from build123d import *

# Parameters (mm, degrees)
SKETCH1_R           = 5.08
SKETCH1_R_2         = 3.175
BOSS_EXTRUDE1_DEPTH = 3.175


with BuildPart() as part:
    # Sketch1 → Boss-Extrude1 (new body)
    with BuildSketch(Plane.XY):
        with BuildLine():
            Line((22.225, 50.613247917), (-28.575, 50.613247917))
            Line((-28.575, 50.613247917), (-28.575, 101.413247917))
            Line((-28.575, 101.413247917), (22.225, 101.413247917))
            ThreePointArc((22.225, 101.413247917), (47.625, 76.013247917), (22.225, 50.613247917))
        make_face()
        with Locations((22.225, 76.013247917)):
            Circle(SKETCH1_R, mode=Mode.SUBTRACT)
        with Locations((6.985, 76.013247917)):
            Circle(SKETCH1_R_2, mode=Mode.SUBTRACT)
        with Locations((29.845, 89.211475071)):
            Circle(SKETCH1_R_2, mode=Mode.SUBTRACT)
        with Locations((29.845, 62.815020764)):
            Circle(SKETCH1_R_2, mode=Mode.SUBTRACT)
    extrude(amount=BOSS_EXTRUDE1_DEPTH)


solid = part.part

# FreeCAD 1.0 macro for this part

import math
import FreeCAD as App
import Part
import Sketcher
Q = App.Units.Quantity

doc = App.newDocument("Part")
body = doc.addObject("PartDesign::Body", "Body")

# Sketch on XY plane
sketch1 = doc.addObject("Sketcher::SketchObject", "Sketch")
body.addObject(sketch1)
sketch1.AttachmentSupport = (doc.XY_Plane, [""])
sketch1.MapMode = "FlatFace"
sketch1.addGeometry([
    Part.LineSegment(App.Vector(-28.6, 50.6, 0), App.Vector(22.2, 50.6, 0)),  # 0
    Part.ArcOfCircle(Part.Circle(App.Vector(22.2, 76, 0), App.Vector(0, 0, 1), 25.4), math.radians(-90), math.radians(90)),  # 1
    Part.LineSegment(App.Vector(22.2, 101.4, 0), App.Vector(-28.6, 101.4, 0)),  # 2
    Part.LineSegment(App.Vector(-28.6, 101.4, 0), App.Vector(-28.6, 50.6, 0)),  # 3
    Part.Circle(App.Vector(29.8, 62.8, 0), App.Vector(0, 0, 1), 3.2),  # 4
    Part.Circle(App.Vector(22.2, 76, 0), App.Vector(0, 0, 1), 5.1),  # 5
    Part.Circle(App.Vector(7, 76, 0), App.Vector(0, 0, 1), 3.2),  # 6
    Part.Circle(App.Vector(29.8, 89.2, 0), App.Vector(0, 0, 1), 3.2),  # 7
], False)
sketch1.addConstraint([
    Sketcher.Constraint("Tangent", 0, 2, 1, 1),
    Sketcher.Constraint("Tangent", 1, 2, 2, 1),
    Sketcher.Constraint("Coincident", 2, 2, 3, 1),
    Sketcher.Constraint("Coincident", 3, 2, 0, 1),
    Sketcher.Constraint("Horizontal", 0),
    Sketcher.Constraint("Horizontal", 2),
    Sketcher.Constraint("Vertical", 3),
    Sketcher.Constraint("Coincident", 5, 3, 1, 3),
    Sketcher.Constraint("Equal", 4, 6),
    Sketcher.Constraint("Equal", 6, 7),
    Sketcher.Constraint("Horizontal", 5, 3, 6, 3),
    Sketcher.Constraint("Vertical", 4, 3, 7, 3),
    Sketcher.Constraint("Equal", 2, 3),
    Sketcher.Constraint("Radius", 1, Q("1 in")),
    Sketcher.Constraint("Diameter", 5, Q("0.4 in")),
    Sketcher.Constraint("Diameter", 4, Q("0.25 in")),
    Sketcher.Constraint("DistanceX", 1, 3, 4, 3, Q("0.3 in")),
    Sketcher.Constraint("DistanceX", 6, 3, 1, 3, Q("0.6 in")),
    Sketcher.Constraint("DistanceX", -1, 1, 1, 3, Q("0.875 in")),
    Sketcher.Constraint("DistanceY", -1, 1, 4, 3, 62.815021),
    Sketcher.Constraint("DistanceY", -1, 1, 1, 3, 76.013248),
    Sketcher.Constraint("DistanceY", -1, 1, 7, 3, 89.211475),
])
pad1 = doc.addObject("PartDesign::Pad", "Pad")
body.addObject(pad1)
pad1.Profile = sketch1
pad1.Length = Q("0.125 in")

doc.recompute()
